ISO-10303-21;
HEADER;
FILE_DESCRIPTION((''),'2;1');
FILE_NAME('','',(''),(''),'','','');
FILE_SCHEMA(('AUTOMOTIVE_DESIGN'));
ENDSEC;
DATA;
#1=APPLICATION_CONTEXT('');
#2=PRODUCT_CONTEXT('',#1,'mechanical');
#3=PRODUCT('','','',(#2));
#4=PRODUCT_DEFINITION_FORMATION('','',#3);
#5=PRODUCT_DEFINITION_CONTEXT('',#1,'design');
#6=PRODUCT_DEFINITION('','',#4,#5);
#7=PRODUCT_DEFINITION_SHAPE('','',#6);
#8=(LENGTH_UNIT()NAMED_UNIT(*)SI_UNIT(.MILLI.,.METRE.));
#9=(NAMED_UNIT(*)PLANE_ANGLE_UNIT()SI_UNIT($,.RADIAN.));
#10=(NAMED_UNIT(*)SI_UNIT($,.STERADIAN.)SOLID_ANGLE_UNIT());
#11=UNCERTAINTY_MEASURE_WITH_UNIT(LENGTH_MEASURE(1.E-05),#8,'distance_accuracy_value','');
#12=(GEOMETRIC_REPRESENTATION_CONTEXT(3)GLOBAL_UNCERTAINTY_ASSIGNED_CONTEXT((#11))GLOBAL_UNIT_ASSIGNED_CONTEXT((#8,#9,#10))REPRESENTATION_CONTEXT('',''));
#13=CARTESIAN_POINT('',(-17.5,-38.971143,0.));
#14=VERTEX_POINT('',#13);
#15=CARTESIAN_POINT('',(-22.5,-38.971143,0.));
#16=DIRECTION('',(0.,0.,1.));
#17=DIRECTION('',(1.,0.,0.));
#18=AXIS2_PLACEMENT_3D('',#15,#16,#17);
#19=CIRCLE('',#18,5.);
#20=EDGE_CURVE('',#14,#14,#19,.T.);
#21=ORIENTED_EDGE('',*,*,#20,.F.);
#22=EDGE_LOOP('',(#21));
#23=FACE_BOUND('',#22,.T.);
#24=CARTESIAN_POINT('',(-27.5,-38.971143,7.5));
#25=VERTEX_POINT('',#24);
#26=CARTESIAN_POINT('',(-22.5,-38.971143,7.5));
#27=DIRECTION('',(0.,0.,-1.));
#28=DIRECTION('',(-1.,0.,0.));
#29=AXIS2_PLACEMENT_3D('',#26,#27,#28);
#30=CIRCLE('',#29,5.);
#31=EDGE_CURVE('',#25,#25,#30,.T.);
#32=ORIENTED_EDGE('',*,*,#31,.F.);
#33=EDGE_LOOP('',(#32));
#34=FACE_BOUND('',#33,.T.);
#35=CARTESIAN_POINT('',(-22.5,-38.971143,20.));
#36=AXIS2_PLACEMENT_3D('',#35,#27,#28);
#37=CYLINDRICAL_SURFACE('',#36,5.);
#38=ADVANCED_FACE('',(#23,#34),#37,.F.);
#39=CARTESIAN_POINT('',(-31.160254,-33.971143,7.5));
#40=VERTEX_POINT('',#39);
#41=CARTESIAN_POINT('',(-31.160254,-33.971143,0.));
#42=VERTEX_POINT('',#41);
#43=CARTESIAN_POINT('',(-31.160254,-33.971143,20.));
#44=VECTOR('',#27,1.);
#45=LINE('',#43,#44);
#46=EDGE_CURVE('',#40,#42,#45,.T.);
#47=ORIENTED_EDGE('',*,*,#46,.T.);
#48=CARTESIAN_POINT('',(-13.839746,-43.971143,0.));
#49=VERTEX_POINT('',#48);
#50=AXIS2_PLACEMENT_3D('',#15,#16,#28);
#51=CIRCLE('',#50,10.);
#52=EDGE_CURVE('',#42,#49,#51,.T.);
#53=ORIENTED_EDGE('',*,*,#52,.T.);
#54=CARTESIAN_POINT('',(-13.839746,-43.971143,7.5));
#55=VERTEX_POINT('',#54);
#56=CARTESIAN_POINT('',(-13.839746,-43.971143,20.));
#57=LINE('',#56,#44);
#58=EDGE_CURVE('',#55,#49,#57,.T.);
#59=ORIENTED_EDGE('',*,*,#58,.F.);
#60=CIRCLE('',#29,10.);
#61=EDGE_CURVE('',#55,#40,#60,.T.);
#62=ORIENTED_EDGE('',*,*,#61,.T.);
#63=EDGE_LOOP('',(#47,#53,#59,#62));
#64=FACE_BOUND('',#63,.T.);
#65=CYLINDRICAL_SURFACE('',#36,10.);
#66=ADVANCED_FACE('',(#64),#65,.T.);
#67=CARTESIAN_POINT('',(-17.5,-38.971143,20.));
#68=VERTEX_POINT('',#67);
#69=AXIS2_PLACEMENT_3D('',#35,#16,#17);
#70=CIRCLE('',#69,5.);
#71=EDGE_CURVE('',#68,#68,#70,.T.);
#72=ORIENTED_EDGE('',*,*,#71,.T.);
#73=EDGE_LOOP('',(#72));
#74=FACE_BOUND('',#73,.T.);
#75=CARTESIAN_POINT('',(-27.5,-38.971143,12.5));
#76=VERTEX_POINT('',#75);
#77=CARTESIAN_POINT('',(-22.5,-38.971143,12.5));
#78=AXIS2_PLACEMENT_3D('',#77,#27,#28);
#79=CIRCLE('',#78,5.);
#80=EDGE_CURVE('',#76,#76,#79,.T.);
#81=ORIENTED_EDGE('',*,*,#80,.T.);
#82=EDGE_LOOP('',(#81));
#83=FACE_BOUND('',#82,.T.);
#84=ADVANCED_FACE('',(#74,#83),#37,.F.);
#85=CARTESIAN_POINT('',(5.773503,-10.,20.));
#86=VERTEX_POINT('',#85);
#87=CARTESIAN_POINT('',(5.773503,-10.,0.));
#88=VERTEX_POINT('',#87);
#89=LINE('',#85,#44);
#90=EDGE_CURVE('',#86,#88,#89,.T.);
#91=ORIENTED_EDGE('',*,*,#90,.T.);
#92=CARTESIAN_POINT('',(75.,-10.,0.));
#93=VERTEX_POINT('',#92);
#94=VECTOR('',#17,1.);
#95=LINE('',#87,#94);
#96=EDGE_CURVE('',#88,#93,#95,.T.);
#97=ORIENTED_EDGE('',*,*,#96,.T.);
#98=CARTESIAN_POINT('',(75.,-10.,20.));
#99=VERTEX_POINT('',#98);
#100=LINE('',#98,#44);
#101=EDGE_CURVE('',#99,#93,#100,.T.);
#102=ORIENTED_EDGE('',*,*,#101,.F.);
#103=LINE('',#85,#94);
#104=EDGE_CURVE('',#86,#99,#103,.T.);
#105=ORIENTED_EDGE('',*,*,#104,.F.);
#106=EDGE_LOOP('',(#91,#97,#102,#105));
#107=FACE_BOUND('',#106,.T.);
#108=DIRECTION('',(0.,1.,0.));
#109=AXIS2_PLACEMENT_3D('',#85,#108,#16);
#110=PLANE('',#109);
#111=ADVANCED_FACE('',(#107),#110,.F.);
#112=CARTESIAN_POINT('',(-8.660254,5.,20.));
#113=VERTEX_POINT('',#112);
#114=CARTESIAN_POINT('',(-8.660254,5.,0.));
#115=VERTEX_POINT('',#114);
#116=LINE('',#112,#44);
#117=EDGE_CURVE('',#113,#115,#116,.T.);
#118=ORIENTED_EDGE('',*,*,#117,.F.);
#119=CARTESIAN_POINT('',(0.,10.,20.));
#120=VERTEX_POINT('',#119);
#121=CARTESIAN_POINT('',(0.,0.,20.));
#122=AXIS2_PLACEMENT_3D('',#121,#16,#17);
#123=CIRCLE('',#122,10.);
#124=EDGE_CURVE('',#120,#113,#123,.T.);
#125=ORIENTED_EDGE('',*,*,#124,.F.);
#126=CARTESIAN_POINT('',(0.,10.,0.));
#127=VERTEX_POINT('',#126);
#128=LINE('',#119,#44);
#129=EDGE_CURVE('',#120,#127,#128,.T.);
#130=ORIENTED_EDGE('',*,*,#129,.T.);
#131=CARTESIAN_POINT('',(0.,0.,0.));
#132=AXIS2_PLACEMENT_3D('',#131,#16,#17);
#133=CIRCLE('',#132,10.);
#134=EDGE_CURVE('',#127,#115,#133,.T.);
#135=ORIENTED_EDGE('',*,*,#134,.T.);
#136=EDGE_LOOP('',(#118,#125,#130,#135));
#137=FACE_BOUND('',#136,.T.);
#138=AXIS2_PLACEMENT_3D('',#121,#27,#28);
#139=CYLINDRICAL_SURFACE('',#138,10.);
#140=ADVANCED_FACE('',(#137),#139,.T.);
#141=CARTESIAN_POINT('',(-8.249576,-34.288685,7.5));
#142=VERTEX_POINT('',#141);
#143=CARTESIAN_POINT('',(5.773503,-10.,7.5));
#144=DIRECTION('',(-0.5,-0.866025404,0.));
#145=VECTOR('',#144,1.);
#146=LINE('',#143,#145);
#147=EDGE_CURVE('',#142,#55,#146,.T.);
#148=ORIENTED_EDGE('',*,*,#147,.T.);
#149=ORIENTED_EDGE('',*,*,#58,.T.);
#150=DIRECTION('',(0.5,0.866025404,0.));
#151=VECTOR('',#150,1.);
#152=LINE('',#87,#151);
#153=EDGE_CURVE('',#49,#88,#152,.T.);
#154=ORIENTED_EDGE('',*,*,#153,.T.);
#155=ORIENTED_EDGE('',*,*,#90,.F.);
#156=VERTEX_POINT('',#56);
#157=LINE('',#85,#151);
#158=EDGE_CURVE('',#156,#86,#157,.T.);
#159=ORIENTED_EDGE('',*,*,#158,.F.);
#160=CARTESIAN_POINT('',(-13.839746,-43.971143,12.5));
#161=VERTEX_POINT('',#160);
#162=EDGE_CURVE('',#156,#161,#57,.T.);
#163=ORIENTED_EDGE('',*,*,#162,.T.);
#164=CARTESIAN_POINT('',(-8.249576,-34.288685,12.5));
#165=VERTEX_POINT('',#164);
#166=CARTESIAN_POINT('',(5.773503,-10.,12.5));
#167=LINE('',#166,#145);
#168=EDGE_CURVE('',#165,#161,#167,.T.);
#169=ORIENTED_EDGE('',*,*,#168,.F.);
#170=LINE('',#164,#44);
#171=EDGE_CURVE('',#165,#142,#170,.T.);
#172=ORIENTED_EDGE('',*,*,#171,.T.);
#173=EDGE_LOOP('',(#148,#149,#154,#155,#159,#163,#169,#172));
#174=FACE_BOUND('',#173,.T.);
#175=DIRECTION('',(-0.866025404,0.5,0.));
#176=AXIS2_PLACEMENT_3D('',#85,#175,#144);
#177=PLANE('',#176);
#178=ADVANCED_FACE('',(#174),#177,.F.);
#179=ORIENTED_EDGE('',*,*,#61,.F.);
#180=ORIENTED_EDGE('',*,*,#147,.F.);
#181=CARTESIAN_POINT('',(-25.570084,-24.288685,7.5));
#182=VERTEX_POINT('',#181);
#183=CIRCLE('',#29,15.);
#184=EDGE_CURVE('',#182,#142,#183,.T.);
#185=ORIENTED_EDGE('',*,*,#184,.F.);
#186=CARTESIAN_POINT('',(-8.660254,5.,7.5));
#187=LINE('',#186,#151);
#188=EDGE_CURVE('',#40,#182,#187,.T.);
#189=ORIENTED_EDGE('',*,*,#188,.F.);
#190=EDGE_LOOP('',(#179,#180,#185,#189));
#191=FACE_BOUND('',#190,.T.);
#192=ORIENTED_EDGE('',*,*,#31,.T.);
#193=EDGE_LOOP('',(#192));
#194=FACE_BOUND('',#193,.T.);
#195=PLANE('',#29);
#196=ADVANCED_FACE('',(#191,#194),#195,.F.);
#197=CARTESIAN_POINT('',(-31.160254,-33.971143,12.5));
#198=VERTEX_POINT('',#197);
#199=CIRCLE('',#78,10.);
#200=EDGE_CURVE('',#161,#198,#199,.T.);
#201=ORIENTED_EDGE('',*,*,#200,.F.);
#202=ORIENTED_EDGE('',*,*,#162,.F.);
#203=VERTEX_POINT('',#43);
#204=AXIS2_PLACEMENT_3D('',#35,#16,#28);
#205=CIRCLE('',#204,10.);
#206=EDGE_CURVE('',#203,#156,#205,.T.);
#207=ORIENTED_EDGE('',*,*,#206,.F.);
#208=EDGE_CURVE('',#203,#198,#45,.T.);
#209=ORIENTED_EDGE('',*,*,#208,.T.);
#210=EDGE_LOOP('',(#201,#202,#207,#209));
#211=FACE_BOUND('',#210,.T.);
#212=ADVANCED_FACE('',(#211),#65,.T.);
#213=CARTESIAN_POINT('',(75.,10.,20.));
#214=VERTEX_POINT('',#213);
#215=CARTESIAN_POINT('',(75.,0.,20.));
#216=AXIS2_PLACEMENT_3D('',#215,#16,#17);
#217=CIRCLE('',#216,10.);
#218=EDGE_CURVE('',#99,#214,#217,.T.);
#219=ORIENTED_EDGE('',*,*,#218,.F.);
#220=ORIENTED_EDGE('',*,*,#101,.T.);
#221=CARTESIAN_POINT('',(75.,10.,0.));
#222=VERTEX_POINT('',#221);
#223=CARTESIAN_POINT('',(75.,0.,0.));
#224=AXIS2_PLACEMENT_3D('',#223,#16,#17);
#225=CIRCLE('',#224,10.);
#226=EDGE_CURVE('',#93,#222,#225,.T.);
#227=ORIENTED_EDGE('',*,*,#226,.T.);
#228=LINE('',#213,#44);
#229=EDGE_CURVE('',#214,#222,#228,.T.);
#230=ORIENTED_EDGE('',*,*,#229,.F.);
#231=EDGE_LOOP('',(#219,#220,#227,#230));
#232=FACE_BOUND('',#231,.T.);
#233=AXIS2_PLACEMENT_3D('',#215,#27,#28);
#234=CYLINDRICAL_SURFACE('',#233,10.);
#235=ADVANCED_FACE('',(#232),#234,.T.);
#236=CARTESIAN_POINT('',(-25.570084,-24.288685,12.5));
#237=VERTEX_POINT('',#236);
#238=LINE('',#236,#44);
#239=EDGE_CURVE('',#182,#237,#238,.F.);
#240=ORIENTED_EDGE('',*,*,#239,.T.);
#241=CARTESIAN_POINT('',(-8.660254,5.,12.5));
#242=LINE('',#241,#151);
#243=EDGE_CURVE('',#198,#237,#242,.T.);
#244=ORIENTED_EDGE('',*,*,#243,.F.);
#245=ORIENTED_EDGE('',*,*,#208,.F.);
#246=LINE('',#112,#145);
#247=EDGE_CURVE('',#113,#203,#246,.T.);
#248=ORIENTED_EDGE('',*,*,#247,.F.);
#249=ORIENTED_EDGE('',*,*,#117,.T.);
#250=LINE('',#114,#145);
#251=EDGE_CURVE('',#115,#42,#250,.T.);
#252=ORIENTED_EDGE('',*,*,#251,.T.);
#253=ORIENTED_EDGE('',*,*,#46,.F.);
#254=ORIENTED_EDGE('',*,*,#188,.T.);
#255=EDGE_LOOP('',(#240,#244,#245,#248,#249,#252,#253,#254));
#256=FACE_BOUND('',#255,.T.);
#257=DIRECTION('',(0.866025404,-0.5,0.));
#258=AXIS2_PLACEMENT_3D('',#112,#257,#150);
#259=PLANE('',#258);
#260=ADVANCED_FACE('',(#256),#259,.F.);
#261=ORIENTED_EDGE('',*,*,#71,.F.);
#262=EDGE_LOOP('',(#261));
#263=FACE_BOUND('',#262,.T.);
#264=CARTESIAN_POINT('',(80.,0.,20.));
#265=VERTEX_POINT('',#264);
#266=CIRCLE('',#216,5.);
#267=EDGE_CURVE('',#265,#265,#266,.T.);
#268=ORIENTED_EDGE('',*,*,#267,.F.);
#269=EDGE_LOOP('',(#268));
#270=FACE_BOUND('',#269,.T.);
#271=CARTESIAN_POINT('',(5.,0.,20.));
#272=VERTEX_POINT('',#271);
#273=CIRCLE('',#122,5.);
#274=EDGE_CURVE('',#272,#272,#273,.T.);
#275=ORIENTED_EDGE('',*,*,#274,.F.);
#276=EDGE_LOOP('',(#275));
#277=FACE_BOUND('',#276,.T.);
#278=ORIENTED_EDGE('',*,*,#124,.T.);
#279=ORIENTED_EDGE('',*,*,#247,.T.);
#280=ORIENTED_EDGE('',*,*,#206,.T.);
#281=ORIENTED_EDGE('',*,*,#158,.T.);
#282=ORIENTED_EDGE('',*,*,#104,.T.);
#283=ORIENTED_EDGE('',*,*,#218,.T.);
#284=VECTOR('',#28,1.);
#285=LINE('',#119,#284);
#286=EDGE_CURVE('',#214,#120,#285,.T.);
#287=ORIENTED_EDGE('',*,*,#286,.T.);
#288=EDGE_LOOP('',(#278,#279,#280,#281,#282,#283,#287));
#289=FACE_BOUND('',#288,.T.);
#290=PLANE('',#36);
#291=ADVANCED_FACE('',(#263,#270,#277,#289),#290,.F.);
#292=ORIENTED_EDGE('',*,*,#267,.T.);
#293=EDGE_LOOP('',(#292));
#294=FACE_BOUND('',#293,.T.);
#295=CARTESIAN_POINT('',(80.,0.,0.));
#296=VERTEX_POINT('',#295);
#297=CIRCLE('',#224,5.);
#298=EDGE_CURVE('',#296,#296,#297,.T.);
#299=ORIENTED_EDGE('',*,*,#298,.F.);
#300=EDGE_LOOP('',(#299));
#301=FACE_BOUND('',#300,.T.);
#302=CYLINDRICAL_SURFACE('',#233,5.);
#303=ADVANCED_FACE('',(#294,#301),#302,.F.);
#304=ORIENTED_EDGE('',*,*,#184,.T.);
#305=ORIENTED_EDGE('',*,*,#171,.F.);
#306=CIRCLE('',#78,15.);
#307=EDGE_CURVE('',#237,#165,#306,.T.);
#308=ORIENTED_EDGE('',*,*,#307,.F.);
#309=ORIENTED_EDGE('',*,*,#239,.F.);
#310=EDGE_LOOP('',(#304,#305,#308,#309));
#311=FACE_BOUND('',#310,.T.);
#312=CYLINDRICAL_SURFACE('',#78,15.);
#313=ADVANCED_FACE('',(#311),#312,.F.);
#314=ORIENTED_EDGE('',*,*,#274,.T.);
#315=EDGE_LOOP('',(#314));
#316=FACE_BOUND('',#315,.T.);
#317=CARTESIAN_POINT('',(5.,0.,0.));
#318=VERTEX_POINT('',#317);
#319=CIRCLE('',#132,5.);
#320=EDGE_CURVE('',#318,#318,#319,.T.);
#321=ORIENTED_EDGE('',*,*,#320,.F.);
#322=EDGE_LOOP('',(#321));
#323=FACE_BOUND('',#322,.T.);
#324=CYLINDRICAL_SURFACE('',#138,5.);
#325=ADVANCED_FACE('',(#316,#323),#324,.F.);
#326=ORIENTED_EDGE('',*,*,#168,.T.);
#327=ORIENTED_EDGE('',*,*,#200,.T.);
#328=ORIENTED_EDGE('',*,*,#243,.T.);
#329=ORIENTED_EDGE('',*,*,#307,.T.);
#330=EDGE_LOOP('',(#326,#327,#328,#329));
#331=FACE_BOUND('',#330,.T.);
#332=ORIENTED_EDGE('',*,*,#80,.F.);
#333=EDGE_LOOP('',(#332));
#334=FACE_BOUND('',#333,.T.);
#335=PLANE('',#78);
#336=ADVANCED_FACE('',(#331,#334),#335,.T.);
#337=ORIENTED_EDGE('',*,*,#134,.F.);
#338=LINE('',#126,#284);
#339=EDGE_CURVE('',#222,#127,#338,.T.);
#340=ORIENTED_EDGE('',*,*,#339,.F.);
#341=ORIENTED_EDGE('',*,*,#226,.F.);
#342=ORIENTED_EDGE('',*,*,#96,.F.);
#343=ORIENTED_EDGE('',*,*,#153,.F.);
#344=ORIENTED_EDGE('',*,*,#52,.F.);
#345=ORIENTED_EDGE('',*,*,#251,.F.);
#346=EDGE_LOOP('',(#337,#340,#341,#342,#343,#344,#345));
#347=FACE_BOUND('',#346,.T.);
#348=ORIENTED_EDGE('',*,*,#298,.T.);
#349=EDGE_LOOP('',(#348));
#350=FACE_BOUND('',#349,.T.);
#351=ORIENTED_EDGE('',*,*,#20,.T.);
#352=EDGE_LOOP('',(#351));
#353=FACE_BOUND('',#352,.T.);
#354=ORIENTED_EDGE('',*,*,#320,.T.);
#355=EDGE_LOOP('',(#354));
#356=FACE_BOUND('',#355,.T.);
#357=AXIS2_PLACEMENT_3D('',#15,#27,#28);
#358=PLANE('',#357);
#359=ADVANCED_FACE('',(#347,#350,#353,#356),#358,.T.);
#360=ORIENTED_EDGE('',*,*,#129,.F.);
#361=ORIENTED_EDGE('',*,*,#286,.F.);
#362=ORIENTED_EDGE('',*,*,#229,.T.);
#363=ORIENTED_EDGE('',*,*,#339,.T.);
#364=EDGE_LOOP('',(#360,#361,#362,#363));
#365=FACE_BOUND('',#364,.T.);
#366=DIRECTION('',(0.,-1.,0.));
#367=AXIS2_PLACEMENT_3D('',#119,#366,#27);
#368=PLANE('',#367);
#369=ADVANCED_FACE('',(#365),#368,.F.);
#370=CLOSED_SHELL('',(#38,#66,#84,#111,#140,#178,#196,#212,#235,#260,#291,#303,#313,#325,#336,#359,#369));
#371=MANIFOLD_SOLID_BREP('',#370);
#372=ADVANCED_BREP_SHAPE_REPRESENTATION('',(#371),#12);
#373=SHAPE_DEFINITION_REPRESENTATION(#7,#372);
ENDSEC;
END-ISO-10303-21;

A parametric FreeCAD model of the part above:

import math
import FreeCAD as App
import Part
import Sketcher
from FreeCAD import Vector
Q = App.Units.Quantity

doc = App.newDocument("Part")
body = doc.addObject("PartDesign::Body", "Body")

# Sketch on XY plane
sketch1 = body.newObject("Sketcher::SketchObject", "Sketch")
sketch1.AttachmentSupport = (doc.getObject("XY_Plane"), [""])
sketch1.MapMode = "FlatFace"
sketch1.addGeometry(Part.LineSegment(Vector(5.773503, -10, 0), Vector(75, -10, 0)), False)
sketch1.addGeometry(Part.ArcOfCircle(Part.Circle(Vector(75, 0, 0), Vector(0, 0, 1), 10), math.radians(-90), math.radians(90)), False)
sketch1.addGeometry(Part.LineSegment(Vector(75, 10, 0), Vector(0, 10, 0)), False)
sketch1.addGeometry(Part.ArcOfCircle(Part.Circle(Vector(0, 0, 0), Vector(0, 0, 1), 10), math.radians(90), math.radians(150)), False)
sketch1.addGeometry(Part.LineSegment(Vector(-8.660254, 5, 0), Vector(-31.160254, -33.971143, 0)), False)
sketch1.addGeometry(Part.ArcOfCircle(Part.Circle(Vector(-22.5, -38.971143, 0), Vector(0, 0, 1), 10), math.radians(150), math.radians(330)), False)
sketch1.addGeometry(Part.LineSegment(Vector(-13.839746, -43.971143, 0), Vector(5.773503, -10, 0)), False)
sketch1.addGeometry(Part.Circle(Vector(-22.5, -38.971143, 0), Vector(0, 0, 1), 5), False)
sketch1.addGeometry(Part.Circle(Vector(0, 0, 0), Vector(0, 0, 1), 5), False)
sketch1.addGeometry(Part.Circle(Vector(75, 0, 0), Vector(0, 0, 1), 5), False)
sketch1.addConstraint(Sketcher.Constraint("Tangent", 0, 2, 1, 1))
sketch1.addConstraint(Sketcher.Constraint("Tangent", 1, 2, 2, 1))
sketch1.addConstraint(Sketcher.Constraint("Tangent", 2, 2, 3, 1))
sketch1.addConstraint(Sketcher.Constraint("Tangent", 3, 2, 4, 1))
sketch1.addConstraint(Sketcher.Constraint("Tangent", 4, 2, 5, 1))
sketch1.addConstraint(Sketcher.Constraint("Tangent", 5, 2, 6, 1))
sketch1.addConstraint(Sketcher.Constraint("Coincident", 6, 2, 0, 1))
sketch1.addConstraint(Sketcher.Constraint("Horizontal", 0))
sketch1.addConstraint(Sketcher.Constraint("Horizontal", 2))
sketch1.addConstraint(Sketcher.Constraint("Coincident", 3, 3, -1, 1))
sketch1.addConstraint(Sketcher.Constraint("Coincident", 8, 3, -1, 1))
sketch1.addConstraint(Sketcher.Constraint("Coincident", 7, 3, 5, 3))
sketch1.addConstraint(Sketcher.Constraint("Coincident", 9, 3, 1, 3))
sketch1.addConstraint(Sketcher.Constraint("Equal", 1, 3))
sketch1.addConstraint(Sketcher.Constraint("Equal", 3, 5))
sketch1.addConstraint(Sketcher.Constraint("Equal", 7, 8))
sketch1.addConstraint(Sketcher.Constraint("Equal", 8, 9))
sketch1.addConstraint(Sketcher.Constraint("Parallel", 4, 6))
sketch1.addConstraint(Sketcher.Constraint("Diameter", 7, Q("10 mm")))
sketch1.addConstraint(Sketcher.Constraint("Radius", 1, Q("10 mm")))
sketch1.addConstraint(Sketcher.Constraint("DistanceX", 2, 2, 2, 1, Q("75 mm")))
sketch1.addConstraint(Sketcher.Constraint("Angle", 4, Q("-120 deg")))
sketch1.addConstraint(Sketcher.Constraint("Distance", 4, Q("45 mm")))
pad1 = body.newObject("PartDesign::Pad", "Pad")
pad1.Profile = sketch1
pad1.Length = 20

# Sketch on XY plane
sketch2 = body.newObject("Sketcher::SketchObject", "Sketch001")
sketch2.AttachmentSupport = (doc.getObject("XY_Plane"), [""])
sketch2.MapMode = "FlatFace"
sketch2.AttachmentOffset = App.Placement(Vector(0, 0, 10), App.Rotation())
sketch2.addGeometry(Part.Circle(Vector(-22.5, -38.971143, 0), Vector(0, 0, 1), 15), False)
sketch2.addConstraint(Sketcher.Constraint("Diameter", 0, Q("30 mm")))
sketch2.addConstraint(Sketcher.Constraint("DistanceX", 0, 3, -1, 1, Q("22.5 mm")))
sketch2.addConstraint(Sketcher.Constraint("DistanceY", 0, 3, -1, 1, Q("38.971143 mm")))
pocket1 = body.newObject("PartDesign::Pocket", "Pocket")
pocket1.Profile = sketch2
pocket1.Length = 5
pocket1.Midplane = True

doc.recompute()
